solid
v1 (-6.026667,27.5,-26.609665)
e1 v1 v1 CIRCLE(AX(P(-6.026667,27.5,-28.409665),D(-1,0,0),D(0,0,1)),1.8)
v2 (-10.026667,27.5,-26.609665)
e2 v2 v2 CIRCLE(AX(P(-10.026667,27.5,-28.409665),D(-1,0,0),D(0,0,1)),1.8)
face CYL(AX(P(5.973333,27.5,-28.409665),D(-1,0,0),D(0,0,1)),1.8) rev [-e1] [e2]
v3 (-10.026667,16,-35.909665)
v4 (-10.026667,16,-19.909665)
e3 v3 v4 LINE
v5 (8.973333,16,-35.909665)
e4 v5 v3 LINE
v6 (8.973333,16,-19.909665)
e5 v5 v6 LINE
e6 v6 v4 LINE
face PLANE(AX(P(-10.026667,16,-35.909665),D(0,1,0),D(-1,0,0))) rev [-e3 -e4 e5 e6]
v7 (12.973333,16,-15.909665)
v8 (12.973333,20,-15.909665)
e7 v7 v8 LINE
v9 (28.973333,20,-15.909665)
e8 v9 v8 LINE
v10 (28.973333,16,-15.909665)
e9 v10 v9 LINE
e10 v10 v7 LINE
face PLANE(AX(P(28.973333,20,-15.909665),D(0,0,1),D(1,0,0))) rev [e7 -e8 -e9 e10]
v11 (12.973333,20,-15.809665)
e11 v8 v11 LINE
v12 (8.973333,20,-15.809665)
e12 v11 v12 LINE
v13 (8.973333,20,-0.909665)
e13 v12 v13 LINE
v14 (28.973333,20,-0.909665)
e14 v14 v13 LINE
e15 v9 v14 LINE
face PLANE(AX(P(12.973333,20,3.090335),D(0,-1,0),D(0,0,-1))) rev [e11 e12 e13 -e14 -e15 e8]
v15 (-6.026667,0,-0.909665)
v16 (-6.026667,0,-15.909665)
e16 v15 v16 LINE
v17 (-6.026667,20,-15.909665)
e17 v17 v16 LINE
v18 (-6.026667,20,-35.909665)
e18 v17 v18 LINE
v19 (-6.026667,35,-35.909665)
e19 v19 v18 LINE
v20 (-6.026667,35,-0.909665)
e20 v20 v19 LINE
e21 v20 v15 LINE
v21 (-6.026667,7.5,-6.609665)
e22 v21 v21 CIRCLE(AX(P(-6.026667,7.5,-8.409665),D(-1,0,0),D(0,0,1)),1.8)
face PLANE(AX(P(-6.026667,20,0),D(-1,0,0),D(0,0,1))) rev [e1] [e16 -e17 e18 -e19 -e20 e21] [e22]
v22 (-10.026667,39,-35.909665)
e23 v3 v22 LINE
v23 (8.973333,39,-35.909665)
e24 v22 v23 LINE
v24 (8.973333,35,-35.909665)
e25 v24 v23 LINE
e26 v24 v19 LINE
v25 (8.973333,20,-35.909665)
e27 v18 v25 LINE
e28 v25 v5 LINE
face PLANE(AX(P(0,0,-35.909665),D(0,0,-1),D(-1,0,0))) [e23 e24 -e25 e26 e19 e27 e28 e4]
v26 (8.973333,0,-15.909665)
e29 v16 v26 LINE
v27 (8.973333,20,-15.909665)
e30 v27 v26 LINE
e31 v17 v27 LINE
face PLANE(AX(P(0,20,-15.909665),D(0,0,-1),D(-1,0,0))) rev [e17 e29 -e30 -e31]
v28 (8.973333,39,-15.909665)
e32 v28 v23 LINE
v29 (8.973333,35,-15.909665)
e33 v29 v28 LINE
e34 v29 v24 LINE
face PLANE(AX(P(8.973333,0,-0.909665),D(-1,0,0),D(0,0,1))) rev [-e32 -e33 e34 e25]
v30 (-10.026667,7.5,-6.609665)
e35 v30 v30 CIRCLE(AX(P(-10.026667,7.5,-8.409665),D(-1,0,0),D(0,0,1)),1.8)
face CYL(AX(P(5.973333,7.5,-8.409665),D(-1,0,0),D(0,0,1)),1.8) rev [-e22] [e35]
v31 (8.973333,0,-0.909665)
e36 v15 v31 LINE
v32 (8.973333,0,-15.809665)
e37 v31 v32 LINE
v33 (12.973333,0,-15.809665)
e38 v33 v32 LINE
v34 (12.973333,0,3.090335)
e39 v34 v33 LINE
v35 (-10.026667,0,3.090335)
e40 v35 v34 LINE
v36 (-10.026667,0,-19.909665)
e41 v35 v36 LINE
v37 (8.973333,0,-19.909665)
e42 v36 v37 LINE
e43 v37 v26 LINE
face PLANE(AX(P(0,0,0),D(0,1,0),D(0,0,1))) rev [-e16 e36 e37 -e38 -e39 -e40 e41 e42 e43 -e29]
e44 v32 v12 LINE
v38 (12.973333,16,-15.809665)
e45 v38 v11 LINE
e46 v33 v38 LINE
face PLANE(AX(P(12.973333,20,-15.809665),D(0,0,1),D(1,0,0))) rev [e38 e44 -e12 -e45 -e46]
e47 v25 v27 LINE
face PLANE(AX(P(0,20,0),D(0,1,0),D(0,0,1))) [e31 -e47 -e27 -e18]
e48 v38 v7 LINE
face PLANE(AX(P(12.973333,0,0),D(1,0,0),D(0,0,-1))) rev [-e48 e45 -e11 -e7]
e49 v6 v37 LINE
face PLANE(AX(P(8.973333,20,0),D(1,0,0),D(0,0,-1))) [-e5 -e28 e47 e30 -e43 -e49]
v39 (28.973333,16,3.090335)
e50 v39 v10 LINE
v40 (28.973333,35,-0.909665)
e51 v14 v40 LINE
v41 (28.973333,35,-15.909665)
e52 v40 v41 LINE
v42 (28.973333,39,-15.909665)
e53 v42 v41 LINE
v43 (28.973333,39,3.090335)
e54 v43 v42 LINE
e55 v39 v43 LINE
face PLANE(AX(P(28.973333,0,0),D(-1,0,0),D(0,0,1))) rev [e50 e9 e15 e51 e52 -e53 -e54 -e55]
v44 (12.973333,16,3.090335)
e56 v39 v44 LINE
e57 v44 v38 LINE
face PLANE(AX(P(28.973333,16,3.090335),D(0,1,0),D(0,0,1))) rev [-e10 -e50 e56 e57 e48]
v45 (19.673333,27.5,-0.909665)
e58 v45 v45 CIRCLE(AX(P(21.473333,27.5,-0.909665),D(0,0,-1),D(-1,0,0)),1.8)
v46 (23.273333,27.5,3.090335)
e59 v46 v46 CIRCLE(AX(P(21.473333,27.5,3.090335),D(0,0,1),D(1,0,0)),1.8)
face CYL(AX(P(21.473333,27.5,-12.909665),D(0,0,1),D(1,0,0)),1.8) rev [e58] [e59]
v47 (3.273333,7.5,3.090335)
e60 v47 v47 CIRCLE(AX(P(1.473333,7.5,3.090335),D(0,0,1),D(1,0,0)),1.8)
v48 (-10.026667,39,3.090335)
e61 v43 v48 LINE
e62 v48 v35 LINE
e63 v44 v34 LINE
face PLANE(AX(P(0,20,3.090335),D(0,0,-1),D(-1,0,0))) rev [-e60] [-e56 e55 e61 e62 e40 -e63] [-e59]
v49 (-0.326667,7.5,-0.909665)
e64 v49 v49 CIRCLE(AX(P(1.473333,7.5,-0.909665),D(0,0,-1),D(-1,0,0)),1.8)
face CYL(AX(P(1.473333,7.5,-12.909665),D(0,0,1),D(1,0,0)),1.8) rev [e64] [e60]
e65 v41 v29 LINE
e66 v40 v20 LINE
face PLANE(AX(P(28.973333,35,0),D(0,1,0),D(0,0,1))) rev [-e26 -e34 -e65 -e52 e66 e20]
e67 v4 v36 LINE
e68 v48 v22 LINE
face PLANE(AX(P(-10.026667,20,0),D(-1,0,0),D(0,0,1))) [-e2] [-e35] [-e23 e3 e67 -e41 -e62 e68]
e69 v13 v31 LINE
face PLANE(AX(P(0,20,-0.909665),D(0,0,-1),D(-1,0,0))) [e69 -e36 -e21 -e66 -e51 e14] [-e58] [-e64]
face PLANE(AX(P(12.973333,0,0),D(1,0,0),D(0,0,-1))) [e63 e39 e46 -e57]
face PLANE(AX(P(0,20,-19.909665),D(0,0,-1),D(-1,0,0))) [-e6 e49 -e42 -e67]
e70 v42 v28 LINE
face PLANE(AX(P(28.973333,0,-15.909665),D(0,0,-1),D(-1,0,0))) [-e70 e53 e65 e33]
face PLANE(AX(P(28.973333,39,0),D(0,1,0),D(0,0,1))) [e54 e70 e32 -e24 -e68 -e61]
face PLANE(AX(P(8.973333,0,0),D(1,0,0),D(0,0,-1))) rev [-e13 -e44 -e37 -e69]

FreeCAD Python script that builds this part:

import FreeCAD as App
import Part
import Sketcher
from FreeCAD import Vector

doc = App.newDocument("Part")
body = doc.addObject("PartDesign::Body", "Body")

# Sketch on XZ plane
sketch1 = body.newObject("Sketcher::SketchObject", "Sketch")
sketch1.AttachmentSupport = (doc.getObject("XZ_Plane"), [""])
sketch1.MapMode = "FlatFace"
sketch1.addGeometry([
    Part.LineSegment(Vector(8.973333, 3.090335, 0), Vector(8.973333, -0.909665, 0)),  # 0
    Part.LineSegment(Vector(8.973333, -0.909665, 0), Vector(-6.026667, -0.909665, 0)),  # 1
    Part.LineSegment(Vector(-6.026667, -0.909665, 0), Vector(-6.026667, -15.909665, 0)),  # 2
    Part.LineSegment(Vector(-6.026667, -15.909665, 0), Vector(8.973333, -15.909665, 0)),  # 3
    Part.LineSegment(Vector(8.973333, -15.909665, 0), Vector(8.973333, -19.909665, 0)),  # 4
    Part.LineSegment(Vector(8.973333, -19.909665, 0), Vector(-10.026667, -19.909665, 0)),  # 5
    Part.LineSegment(Vector(-10.026667, -19.909665, 0), Vector(-10.026667, 3.090335, 0)),  # 6
    Part.LineSegment(Vector(-10.026667, 3.090335, 0), Vector(8.973333, 3.090335, 0)),  # 7
], False)
sketch1.addConstraint([
    Sketcher.Constraint("Coincident", 0, 2, 1, 1),
    Sketcher.Constraint("Coincident", 1, 2, 2, 1),
    Sketcher.Constraint("Coincident", 2, 2, 3, 1),
    Sketcher.Constraint("Coincident", 3, 2, 4, 1),
    Sketcher.Constraint("Coincident", 4, 2, 5, 1),
    Sketcher.Constraint("Coincident", 5, 2, 6, 1),
    Sketcher.Constraint("Coincident", 6, 2, 7, 1),
    Sketcher.Constraint("Coincident", 7, 2, 0, 1),
    Sketcher.Constraint("Vertical", 0),
    Sketcher.Constraint("Horizontal", 1),
    Sketcher.Constraint("Vertical", 2),
    Sketcher.Constraint("Horizontal", 3),
    Sketcher.Constraint("Vertical", 4),
    Sketcher.Constraint("Horizontal", 5),
    Sketcher.Constraint("Vertical", 6),
    Sketcher.Constraint("Horizontal", 7),
    Sketcher.Constraint("Vertical", 0, 2, 3, 2),
    Sketcher.Constraint("Equal", 3, 2),
    Sketcher.Constraint("Equal", 0, 4),
    Sketcher.Constraint("DistanceX", 1, 2, 1, 1, 15.0),
    Sketcher.Constraint("DistanceX", 5, 2, 5, 1, 19.0),
    Sketcher.Constraint("DistanceY", 0, 2, 0, 1, 4.0),
    Sketcher.Constraint("DistanceX", -1, 1, 0, 2, 8.973333),
    Sketcher.Constraint("DistanceY", 0, 2, -1, 1, 0.909665),
])
pad1 = body.newObject("PartDesign::Pad", "Pad")
pad1.Profile = sketch1
pad1.Length = 20
pad1.Reversed = True
body2 = doc.addObject("PartDesign::Body", "Body001")

# Sketch on YZ plane
sketch2 = body2.newObject("Sketcher::SketchObject", "Sketch001")
sketch2.AttachmentSupport = (doc.getObject("YZ_Plane001"), [""])
sketch2.MapMode = "FlatFace"
sketch2.AttachmentOffset = App.Placement(Vector(0, 0, 8.973333), App.Rotation())
sketch2.addGeometry([
    Part.LineSegment(Vector(20, 3.090335, 0), Vector(0, 3.090335, 0)),
    Part.LineSegment(Vector(0, 3.090335, 0), Vector(0, -15.809665, 0)),
    Part.LineSegment(Vector(0, -15.809665, 0), Vector(20, -15.809665, 0)),
    Part.LineSegment(Vector(20, -15.809665, 0), Vector(20, 3.090335, 0)),
], False)
sketch2.addConstraint([
    Sketcher.Constraint("Coincident", 0, 2, 1, 1),
    Sketcher.Constraint("Coincident", 1, 2, 2, 1),
    Sketcher.Constraint("Coincident", 2, 2, 3, 1),
    Sketcher.Constraint("Coincident", 3, 2, 0, 1),
    Sketcher.Constraint("Horizontal", 0),
    Sketcher.Constraint("Vertical", 1),
    Sketcher.Constraint("Horizontal", 2),
    Sketcher.Constraint("Vertical", 3),
    Sketcher.Constraint("PointOnObject", 0, 2, -2),
    Sketcher.Constraint("DistanceX", 0, 2, 0, 1, 20.0),
    Sketcher.Constraint("DistanceY", 1, 2, 1, 1, 18.9),
    Sketcher.Constraint("DistanceY", -1, 1, 0, 2, 3.090335),
])
pad2 = body2.newObject("PartDesign::Pad", "Pad001")
pad2.Profile = sketch2
pad2.Length = 4
doc.recompute()

boolean = body.newObject("PartDesign::Boolean", "Boolean")
boolean.Type = "Fuse"
boolean.addObjects([body2])

# Sketch on YZ plane
sketch3 = body.newObject("Sketcher::SketchObject", "Sketch002")
sketch3.AttachmentSupport = (doc.getObject("YZ_Plane"), [""])
sketch3.MapMode = "FlatFace"
sketch3.AttachmentOffset = App.Placement(Vector(0, 0, -10.026667), App.Rotation())
sketch3.addGeometry([
    Part.LineSegment(Vector(39, -15.909665, 0), Vector(35, -15.909665, 0)),  # 0
    Part.LineSegment(Vector(35, -15.909665, 0), Vector(35, -0.909665, 0)),  # 1
    Part.LineSegment(Vector(35, -0.909665, 0), Vector(20, -0.909665, 0)),  # 2
    Part.LineSegment(Vector(20, -0.909665, 0), Vector(20, 3.090335, 0)),  # 3
    Part.LineSegment(Vector(20, 3.090335, 0), Vector(39, 3.090335, 0)),  # 4
    Part.LineSegment(Vector(39, 3.090335, 0), Vector(39, -15.909665, 0)),  # 5
], False)
sketch3.addConstraint([
    Sketcher.Constraint("Coincident", 0, 2, 1, 1),
    Sketcher.Constraint("Coincident", 1, 2, 2, 1),
    Sketcher.Constraint("Coincident", 2, 2, 3, 1),
    Sketcher.Constraint("Coincident", 3, 2, 4, 1),
    Sketcher.Constraint("Coincident", 4, 2, 5, 1),
    Sketcher.Constraint("Coincident", 5, 2, 0, 1),
    Sketcher.Constraint("Horizontal", 0),
    Sketcher.Constraint("Vertical", 1),
    Sketcher.Constraint("Horizontal", 2),
    Sketcher.Constraint("Vertical", 3),
    Sketcher.Constraint("Horizontal", 4),
    Sketcher.Constraint("Vertical", 5),
    Sketcher.Constraint("Equal", 2, 1),
    Sketcher.Constraint("Equal", 0, 3),
    Sketcher.Constraint("DistanceX", 0, 2, 0, 1, 4.0),
    Sketcher.Constraint("DistanceX", 2, 2, 2, 1, 15.0),
    Sketcher.Constraint("DistanceX", -1, 1, 0, 2, 35.0),
    Sketcher.Constraint("DistanceY", 0, 2, -1, 1, 15.909665),
])
pad3 = body.newObject("PartDesign::Pad", "Pad002")
pad3.Profile = sketch3
pad3.Length = 39

# Sketch on YZ plane
sketch4 = body.newObject("Sketcher::SketchObject", "Sketch003")
sketch4.AttachmentSupport = (doc.getObject("YZ_Plane"), [""])
sketch4.MapMode = "FlatFace"
sketch4.AttachmentOffset = App.Placement(Vector(0, 0, 12.973333), App.Rotation())
sketch4.addGeometry([
    Part.LineSegment(Vector(20, 3.090335, 0), Vector(16, 3.090335, 0)),
    Part.LineSegment(Vector(16, 3.090335, 0), Vector(16, -15.909665, 0)),
    Part.LineSegment(Vector(16, -15.909665, 0), Vector(20, -15.909665, 0)),
    Part.LineSegment(Vector(20, -15.909665, 0), Vector(20, 3.090335, 0)),
], False)
sketch4.addConstraint([
    Sketcher.Constraint("Coincident", 0, 2, 1, 1),
    Sketcher.Constraint("Coincident", 1, 2, 2, 1),
    Sketcher.Constraint("Coincident", 2, 2, 3, 1),
    Sketcher.Constraint("Coincident", 3, 2, 0, 1),
    Sketcher.Constraint("Horizontal", 0),
    Sketcher.Constraint("Vertical", 1),
    Sketcher.Constraint("Horizontal", 2),
    Sketcher.Constraint("Vertical", 3),
    Sketcher.Constraint("DistanceX", 0, 2, 0, 1, 4.0),
    Sketcher.Constraint("DistanceY", 1, 2, 1, 1, 19.0),
    Sketcher.Constraint("DistanceX", -1, 1, 0, 2, 16.0),
    Sketcher.Constraint("DistanceY", -1, 1, 0, 2, 3.090335),
])
pad4 = body.newObject("PartDesign::Pad", "Pad003")
pad4.Profile = sketch4
pad4.Length = 16

# Sketch on XY plane
sketch5 = body.newObject("Sketcher::SketchObject", "Sketch004")
sketch5.AttachmentSupport = (doc.getObject("XY_Plane"), [""])
sketch5.MapMode = "FlatFace"
sketch5.AttachmentOffset = App.Placement(Vector(0, 0, -15.909665), App.Rotation())
sketch5.addGeometry([
    Part.LineSegment(Vector(-10.026667, 39, 0), Vector(8.973333, 39, 0)),  # 0
    Part.LineSegment(Vector(8.973333, 39, 0), Vector(8.973333, 35, 0)),  # 1
    Part.LineSegment(Vector(8.973333, 35, 0), Vector(-6.026667, 35, 0)),  # 2
    Part.LineSegment(Vector(-6.026667, 35, 0), Vector(-6.026667, 20, 0)),  # 3
    Part.LineSegment(Vector(-6.026667, 20, 0), Vector(-10.026667, 20, 0)),  # 4
    Part.LineSegment(Vector(-10.026667, 20, 0), Vector(-10.026667, 39, 0)),  # 5
], False)
sketch5.addConstraint([
    Sketcher.Constraint("Coincident", 0, 2, 1, 1),
    Sketcher.Constraint("Coincident", 1, 2, 2, 1),
    Sketcher.Constraint("Coincident", 2, 2, 3, 1),
    Sketcher.Constraint("Coincident", 3, 2, 4, 1),
    Sketcher.Constraint("Coincident", 4, 2, 5, 1),
    Sketcher.Constraint("Coincident", 5, 2, 0, 1),
    Sketcher.Constraint("Horizontal", 0),
    Sketcher.Constraint("Vertical", 1),
    Sketcher.Constraint("Horizontal", 2),
    Sketcher.Constraint("Vertical", 3),
    Sketcher.Constraint("Horizontal", 4),
    Sketcher.Constraint("Vertical", 5),
    Sketcher.Constraint("Equal", 4, 1),
    Sketcher.Constraint("Equal", 2, 3),
    Sketcher.Constraint("DistanceX", 0, 1, 0, 2, 19.0),
    Sketcher.Constraint("DistanceX", 2, 2, 2, 1, 15.0),
    Sketcher.Constraint("DistanceY", -1, 1, 0, 2, 39.0),
    Sketcher.Constraint("DistanceX", -1, 1, 0, 2, 8.973333),
])
pad5 = body.newObject("PartDesign::Pad", "Pad004")
pad5.Profile = sketch5
pad5.Type = "TwoLengths"
pad5.Length = 20
pad5.Length2 = 15
pad5.Reversed = True

# Sketch on XY plane
sketch6 = body.newObject("Sketcher::SketchObject", "Sketch005")
sketch6.AttachmentSupport = (doc.getObject("XY_Plane"), [""])
sketch6.MapMode = "FlatFace"
sketch6.AttachmentOffset = App.Placement(Vector(0, 0, -19.909665), App.Rotation())
sketch6.addGeometry([
    Part.LineSegment(Vector(8.973333, 20, 0), Vector(8.973333, 16, 0)),
    Part.LineSegment(Vector(8.973333, 16, 0), Vector(-10.026667, 16, 0)),
    Part.LineSegment(Vector(-10.026667, 16, 0), Vector(-10.026667, 20, 0)),
    Part.LineSegment(Vector(-10.026667, 20, 0), Vector(8.973333, 20, 0)),
], False)
sketch6.addConstraint([
    Sketcher.Constraint("Coincident", 0, 2, 1, 1),
    Sketcher.Constraint("Coincident", 1, 2, 2, 1),
    Sketcher.Constraint("Coincident", 2, 2, 3, 1),
    Sketcher.Constraint("Coincident", 3, 2, 0, 1),
    Sketcher.Constraint("Vertical", 0),
    Sketcher.Constraint("Horizontal", 1),
    Sketcher.Constraint("Vertical", 2),
    Sketcher.Constraint("Horizontal", 3),
    Sketcher.Constraint("DistanceX", 1, 2, 1, 1, 19.0),
    Sketcher.Constraint("DistanceY", 0, 2, 0, 1, 4.0),
    Sketcher.Constraint("DistanceY", -1, 1, 0, 2, 16.0),
    Sketcher.Constraint("DistanceX", -1, 1, 0, 2, 8.973333),
])
pad6 = body.newObject("PartDesign::Pad", "Pad005")
pad6.Profile = sketch6
pad6.Length = 16
pad6.Reversed = True

# Sketch on XY plane
sketch7 = body.newObject("Sketcher::SketchObject", "Sketch006")
sketch7.AttachmentSupport = (doc.getObject("XY_Plane"), [""])
sketch7.MapMode = "FlatFace"
sketch7.AttachmentOffset = App.Placement(Vector(0, 0, 3.090335), App.Rotation())
sketch7.addGeometry(Part.Circle(Vector(21.473333, 27.5, 0), Vector(0, 0, 1), 1.8), False)
sketch7.addConstraint([
    Sketcher.Constraint("Diameter", 0, 3.6),
    Sketcher.Constraint("DistanceY", -1, 1, 0, 3, 27.5),
    Sketcher.Constraint("DistanceX", -1, 1, 0, 3, 21.473333),
])
pocket1 = body.newObject("PartDesign::Pocket", "Pocket")
pocket1.Profile = sketch7
pocket1.Length = 16

# Sketch on YZ plane
sketch8 = body.newObject("Sketcher::SketchObject", "Sketch007")
sketch8.AttachmentSupport = (doc.getObject("YZ_Plane"), [""])
sketch8.MapMode = "FlatFace"
sketch8.AttachmentOffset = App.Placement(Vector(0, 0, -10.026667), App.Rotation())
sketch8.addGeometry([
    Part.Circle(Vector(27.5, -28.409665, 0), Vector(0, 0, 1), 1.8),
    Part.Circle(Vector(7.5, -8.409665, 0), Vector(0, 0, 1), 1.8),
], False)
sketch8.addConstraint([
    Sketcher.Constraint("Equal", 0, 1),
    Sketcher.Constraint("Diameter", 0, 3.6),
    Sketcher.Constraint("DistanceX", 1, 3, 0, 3, 20.0),
    Sketcher.Constraint("DistanceY", 0, 3, 1, 3, 20.0),
    Sketcher.Constraint("DistanceX", -1, 1, 0, 3, 27.5),
    Sketcher.Constraint("DistanceY", 0, 3, -1, 1, 28.409665),
])
pocket2 = body.newObject("PartDesign::Pocket", "Pocket001")
pocket2.Profile = sketch8
pocket2.Length = 16
pocket2.Reversed = True

# Sketch on XY plane
sketch9 = body.newObject("Sketcher::SketchObject", "Sketch008")
sketch9.AttachmentSupport = (doc.getObject("XY_Plane"), [""])
sketch9.MapMode = "FlatFace"
sketch9.AttachmentOffset = App.Placement(Vector(0, 0, 3.090335), App.Rotation())
sketch9.addGeometry(Part.Circle(Vector(1.473333, 7.5, 0), Vector(0, 0, 1), 1.8), False)
sketch9.addConstraint([
    Sketcher.Constraint("Diameter", 0, 3.6),
    Sketcher.Constraint("DistanceY", -1, 1, 0, 3, 7.5),
    Sketcher.Constraint("DistanceX", -1, 1, 0, 3, 1.473333),
])
pocket3 = body.newObject("PartDesign::Pocket", "Pocket002")
pocket3.Profile = sketch9
pocket3.Length = 16

doc.recompute()
